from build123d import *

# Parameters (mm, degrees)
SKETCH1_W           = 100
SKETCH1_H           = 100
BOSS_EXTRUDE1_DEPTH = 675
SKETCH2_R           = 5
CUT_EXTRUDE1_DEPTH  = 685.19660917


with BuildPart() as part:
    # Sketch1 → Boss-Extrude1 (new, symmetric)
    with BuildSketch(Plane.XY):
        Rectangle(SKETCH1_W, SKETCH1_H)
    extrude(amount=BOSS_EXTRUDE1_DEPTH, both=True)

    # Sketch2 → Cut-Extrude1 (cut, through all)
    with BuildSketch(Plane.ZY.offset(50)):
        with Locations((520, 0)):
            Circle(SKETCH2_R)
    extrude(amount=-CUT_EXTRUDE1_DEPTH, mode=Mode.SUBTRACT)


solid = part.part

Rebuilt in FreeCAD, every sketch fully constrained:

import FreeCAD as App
import Part
import Sketcher


def add_polygon(sketch, points):
    """Adds a closed chain of lines whose ends are joined by coincident constraints."""
    first, n = sketch.GeometryCount, len(points)
    for a, b in zip(points, points[1:] + points[:1]):
        sketch.addGeometry(Part.LineSegment(App.Vector(*a, 0), App.Vector(*b, 0)), False)
    for i in range(n):
        sketch.addConstraint(Sketcher.Constraint("Coincident", first + i, 2, first + (i + 1) % n, 1))

doc = App.newDocument("Part")
body = doc.addObject("PartDesign::Body", "Body")

sketch1 = body.newObject("Sketcher::SketchObject", "Sketch")
sketch1.AttachmentSupport = (doc.getObject("XY_Plane"), [""])
sketch1.MapMode = "FlatFace"
add_polygon(sketch1, [(-50, 50), (-50, -50), (50, -50), (50, 50)])
sketch1.addConstraint([
    Sketcher.Constraint("Vertical", 0),
    Sketcher.Constraint("Horizontal", 1),
    Sketcher.Constraint("Vertical", 2),
    Sketcher.Constraint("Horizontal", 3),
    Sketcher.Constraint("Symmetric", 0, 2, 2, 2, -1, 1),
    Sketcher.Constraint("Equal", 3, 0),
    Sketcher.Constraint("DistanceX", 1, 1, 1, 2, 100.0),
])
pad1 = body.newObject("PartDesign::Pad", "Pad")
pad1.Profile = sketch1
pad1.Length = 1350
pad1.Midplane = True

sketch2 = body.newObject("Sketcher::SketchObject", "Sketch001")
sketch2.AttachmentSupport = (doc.getObject("YZ_Plane"), [""])
sketch2.MapMode = "FlatFace"
sketch2.AttachmentOffset = App.Placement(App.Vector(0, 0, -50), App.Rotation())
sketch2.addGeometry(Part.Circle(App.Vector(0, 520, 0), App.Vector(0, 0, 1), 5), False)
sketch2.addConstraint([
    Sketcher.Constraint("PointOnObject", 0, 3, -2),
    Sketcher.Constraint("Diameter", 0, 10.0),
    Sketcher.Constraint("DistanceY", -1, 1, 0, 3, 520.0),
])
pocket1 = body.newObject("PartDesign::Pocket", "Pocket")
pocket1.Profile = sketch2
pocket1.Type = "ThroughAll"
pocket1.Reversed = True

doc.recompute()
